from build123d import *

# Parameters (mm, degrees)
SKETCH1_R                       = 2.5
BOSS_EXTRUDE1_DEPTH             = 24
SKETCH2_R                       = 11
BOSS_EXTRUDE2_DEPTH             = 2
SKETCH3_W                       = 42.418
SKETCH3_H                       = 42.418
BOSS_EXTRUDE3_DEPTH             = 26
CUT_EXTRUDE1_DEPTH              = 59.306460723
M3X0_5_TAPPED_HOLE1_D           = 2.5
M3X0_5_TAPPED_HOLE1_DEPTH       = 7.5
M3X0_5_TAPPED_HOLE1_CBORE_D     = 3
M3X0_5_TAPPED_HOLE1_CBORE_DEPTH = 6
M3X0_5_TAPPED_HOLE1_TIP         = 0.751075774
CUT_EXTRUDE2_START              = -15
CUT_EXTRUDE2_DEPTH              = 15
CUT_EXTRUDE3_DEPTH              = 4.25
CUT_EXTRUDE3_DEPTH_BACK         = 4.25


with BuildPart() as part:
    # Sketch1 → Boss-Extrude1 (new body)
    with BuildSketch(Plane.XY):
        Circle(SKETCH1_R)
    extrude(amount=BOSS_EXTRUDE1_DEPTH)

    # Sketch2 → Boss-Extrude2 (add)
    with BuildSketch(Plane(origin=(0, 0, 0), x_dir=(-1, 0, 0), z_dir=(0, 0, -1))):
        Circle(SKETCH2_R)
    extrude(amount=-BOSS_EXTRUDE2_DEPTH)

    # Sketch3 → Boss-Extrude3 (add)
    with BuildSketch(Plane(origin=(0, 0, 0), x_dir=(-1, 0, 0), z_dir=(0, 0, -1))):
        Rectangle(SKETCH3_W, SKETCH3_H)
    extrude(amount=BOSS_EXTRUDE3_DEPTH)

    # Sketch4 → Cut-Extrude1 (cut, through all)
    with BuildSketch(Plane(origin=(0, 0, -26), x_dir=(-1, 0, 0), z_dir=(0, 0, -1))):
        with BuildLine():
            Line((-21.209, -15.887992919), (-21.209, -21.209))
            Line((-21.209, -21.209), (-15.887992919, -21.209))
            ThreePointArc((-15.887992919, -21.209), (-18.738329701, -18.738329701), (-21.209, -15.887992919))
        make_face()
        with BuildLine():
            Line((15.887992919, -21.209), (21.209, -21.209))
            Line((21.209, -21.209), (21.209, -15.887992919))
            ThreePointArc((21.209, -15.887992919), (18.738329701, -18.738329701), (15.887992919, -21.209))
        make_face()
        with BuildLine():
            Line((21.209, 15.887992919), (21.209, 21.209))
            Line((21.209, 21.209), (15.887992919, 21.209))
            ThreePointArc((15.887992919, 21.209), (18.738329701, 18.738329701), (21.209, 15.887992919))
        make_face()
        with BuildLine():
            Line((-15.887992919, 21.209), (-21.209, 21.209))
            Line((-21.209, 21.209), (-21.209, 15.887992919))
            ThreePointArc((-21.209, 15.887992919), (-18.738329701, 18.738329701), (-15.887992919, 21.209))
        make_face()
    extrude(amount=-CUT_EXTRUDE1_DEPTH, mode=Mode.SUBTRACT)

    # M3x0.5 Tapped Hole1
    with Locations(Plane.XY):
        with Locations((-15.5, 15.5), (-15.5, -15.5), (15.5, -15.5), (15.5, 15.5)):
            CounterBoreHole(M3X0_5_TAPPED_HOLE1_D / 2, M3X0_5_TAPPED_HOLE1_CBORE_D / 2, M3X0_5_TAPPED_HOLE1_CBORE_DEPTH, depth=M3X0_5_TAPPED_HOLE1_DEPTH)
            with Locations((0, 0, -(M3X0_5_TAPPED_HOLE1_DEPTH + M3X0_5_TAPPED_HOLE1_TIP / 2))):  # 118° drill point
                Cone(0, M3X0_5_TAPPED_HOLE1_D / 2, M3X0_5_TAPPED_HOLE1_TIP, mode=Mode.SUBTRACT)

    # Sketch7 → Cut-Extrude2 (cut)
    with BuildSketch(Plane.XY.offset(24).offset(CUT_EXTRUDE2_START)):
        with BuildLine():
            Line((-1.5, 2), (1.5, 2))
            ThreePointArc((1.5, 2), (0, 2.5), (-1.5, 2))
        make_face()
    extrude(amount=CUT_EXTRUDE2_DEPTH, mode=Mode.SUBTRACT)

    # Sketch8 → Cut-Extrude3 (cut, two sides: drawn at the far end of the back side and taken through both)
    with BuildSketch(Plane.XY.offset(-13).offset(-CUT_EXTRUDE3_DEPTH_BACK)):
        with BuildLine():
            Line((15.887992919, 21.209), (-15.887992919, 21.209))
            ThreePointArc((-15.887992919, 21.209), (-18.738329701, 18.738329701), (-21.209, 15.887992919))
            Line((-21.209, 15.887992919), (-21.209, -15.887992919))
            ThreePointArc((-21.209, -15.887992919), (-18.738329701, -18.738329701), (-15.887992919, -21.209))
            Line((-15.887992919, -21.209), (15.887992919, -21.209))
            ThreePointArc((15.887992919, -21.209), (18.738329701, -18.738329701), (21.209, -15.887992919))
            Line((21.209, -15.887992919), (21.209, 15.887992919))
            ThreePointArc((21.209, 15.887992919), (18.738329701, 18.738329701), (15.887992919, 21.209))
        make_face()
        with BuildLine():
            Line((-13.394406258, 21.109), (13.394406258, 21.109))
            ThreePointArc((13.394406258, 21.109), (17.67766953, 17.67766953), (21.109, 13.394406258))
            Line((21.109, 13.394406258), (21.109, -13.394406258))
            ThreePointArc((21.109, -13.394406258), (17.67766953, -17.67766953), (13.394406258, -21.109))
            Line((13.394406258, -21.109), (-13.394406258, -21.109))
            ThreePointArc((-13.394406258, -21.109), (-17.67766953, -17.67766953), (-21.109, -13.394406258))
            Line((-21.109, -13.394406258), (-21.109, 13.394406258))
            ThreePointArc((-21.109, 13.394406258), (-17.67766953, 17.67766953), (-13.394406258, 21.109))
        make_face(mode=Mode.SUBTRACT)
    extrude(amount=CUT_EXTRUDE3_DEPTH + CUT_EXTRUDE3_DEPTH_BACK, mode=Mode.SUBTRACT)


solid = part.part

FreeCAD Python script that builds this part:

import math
import FreeCAD as App
import Part
import Sketcher
from FreeCAD import Vector


def add_polygon(sketch, points):
    """Adds a closed chain of lines whose ends are joined by coincident constraints."""
    first, n = sketch.GeometryCount, len(points)
    for a, b in zip(points, points[1:] + points[:1]):
        sketch.addGeometry(Part.LineSegment(App.Vector(*a, 0), App.Vector(*b, 0)), False)
    for i in range(n):
        sketch.addConstraint(Sketcher.Constraint("Coincident", first + i, 2, first + (i + 1) % n, 1))

doc = App.newDocument("Part")
body = doc.addObject("PartDesign::Body", "Body")

sketch1 = body.newObject("Sketcher::SketchObject", "Sketch")
sketch1.AttachmentSupport = (doc.getObject("XY_Plane"), [""])
sketch1.MapMode = "FlatFace"
sketch1.addGeometry(Part.Circle(Vector(0, 0, 0), Vector(0, 0, 1), 2.5), False)
sketch1.addConstraint(Sketcher.Constraint("Coincident", 0, 3, -1, 1))
sketch1.addConstraint(Sketcher.Constraint("Diameter", 0, 5.0))
pad1 = body.newObject("PartDesign::Pad", "Pad")
pad1.Profile = sketch1
pad1.Length = 24

sketch2 = body.newObject("Sketcher::SketchObject", "Sketch001")
sketch2.AttachmentSupport = (doc.getObject("XY_Plane"), [""])
sketch2.MapMode = "FlatFace"
sketch2.addGeometry(Part.Circle(Vector(0, 0, 0), Vector(0, 0, 1), 11), False)
sketch2.addConstraint(Sketcher.Constraint("Coincident", 0, 3, -1, 1))
sketch2.addConstraint(Sketcher.Constraint("Diameter", 0, 22.0))
pad2 = body.newObject("PartDesign::Pad", "Pad001")
pad2.Profile = sketch2
pad2.Length = 2

sketch3 = body.newObject("Sketcher::SketchObject", "Sketch002")
sketch3.AttachmentSupport = (doc.getObject("XY_Plane"), [""])
sketch3.MapMode = "FlatFace"
add_polygon(sketch3, [(21, 21), (21, -21), (-21, -21), (-21, 21)])
sketch3.addConstraint(Sketcher.Constraint("Vertical", 0))
sketch3.addConstraint(Sketcher.Constraint("Horizontal", 1))
sketch3.addConstraint(Sketcher.Constraint("Vertical", 2))
sketch3.addConstraint(Sketcher.Constraint("Horizontal", 3))
sketch3.addConstraint(Sketcher.Constraint("Symmetric", 0, 2, 2, 2, -1, 1))
sketch3.addConstraint(Sketcher.Constraint("Equal", 3, 0))
sketch3.addConstraint(Sketcher.Constraint("DistanceX", 1, 2, 1, 1, 42.418))
pad3 = body.newObject("PartDesign::Pad", "Pad002")
pad3.Profile = sketch3
pad3.Length = 26
pad3.Reversed = True

sketch4 = body.newObject("Sketcher::SketchObject", "Sketch003")
sketch4.AttachmentSupport = (doc.getObject("XY_Plane"), [""])
sketch4.MapMode = "FlatFace"
sketch4.AttachmentOffset = App.Placement(Vector(0, 0, -26), App.Rotation())
sketch4.addGeometry(Part.LineSegment(Vector(21, -16, 0), Vector(21, -21, 0)), False)
sketch4.addGeometry(Part.LineSegment(Vector(21, -21, 0), Vector(16, -21, 0)), False)
sketch4.addGeometry(Part.ArcOfCircle(Part.Circle(Vector(0, 0, 0), Vector(0, 0, 1), 27), math.radians(-53.16), math.radians(-36.84)), False)
sketch4.addGeometry(Part.LineSegment(Vector(-16, -21, 0), Vector(-21, -21, 0)), False)
sketch4.addGeometry(Part.LineSegment(Vector(-21, -21, 0), Vector(-21, -16, 0)), False)
sketch4.addGeometry(Part.ArcOfCircle(Part.Circle(Vector(0, 0, 0), Vector(0, 0, 1), 27), math.radians(-143.16), math.radians(-126.84)), False)
sketch4.addGeometry(Part.LineSegment(Vector(-21, 16, 0), Vector(-21, 21, 0)), False)
sketch4.addGeometry(Part.LineSegment(Vector(-21, 21, 0), Vector(-16, 21, 0)), False)
sketch4.addGeometry(Part.ArcOfCircle(Part.Circle(Vector(0, 0, 0), Vector(0, 0, 1), 27), math.radians(126.84), math.radians(143.16)), False)
sketch4.addGeometry(Part.LineSegment(Vector(16, 21, 0), Vector(21, 21, 0)), False)
sketch4.addGeometry(Part.LineSegment(Vector(21, 21, 0), Vector(21, 16, 0)), False)
sketch4.addGeometry(Part.ArcOfCircle(Part.Circle(Vector(0, 0, 0), Vector(0, 0, 1), 27), math.radians(36.84), math.radians(53.16)), False)
sketch4.addConstraint(Sketcher.Constraint("Coincident", 0, 2, 1, 1))
sketch4.addConstraint(Sketcher.Constraint("Coincident", 1, 2, 2, 1))
sketch4.addConstraint(Sketcher.Constraint("Coincident", 2, 2, 0, 1))
sketch4.addConstraint(Sketcher.Constraint("Coincident", 3, 2, 4, 1))
sketch4.addConstraint(Sketcher.Constraint("Coincident", 4, 2, 5, 1))
sketch4.addConstraint(Sketcher.Constraint("Coincident", 5, 2, 3, 1))
sketch4.addConstraint(Sketcher.Constraint("Coincident", 6, 2, 7, 1))
sketch4.addConstraint(Sketcher.Constraint("Coincident", 7, 2, 8, 1))
sketch4.addConstraint(Sketcher.Constraint("Coincident", 8, 2, 6, 1))
sketch4.addConstraint(Sketcher.Constraint("Coincident", 9, 2, 10, 1))
sketch4.addConstraint(Sketcher.Constraint("Coincident", 10, 2, 11, 1))
sketch4.addConstraint(Sketcher.Constraint("Coincident", 11, 2, 9, 1))
sketch4.addConstraint(Sketcher.Constraint("Vertical", 0))
sketch4.addConstraint(Sketcher.Constraint("Horizontal", 1))
sketch4.addConstraint(Sketcher.Constraint("Horizontal", 3))
sketch4.addConstraint(Sketcher.Constraint("Vertical", 4))
sketch4.addConstraint(Sketcher.Constraint("Vertical", 6))
sketch4.addConstraint(Sketcher.Constraint("Horizontal", 7))
sketch4.addConstraint(Sketcher.Constraint("Horizontal", 9))
sketch4.addConstraint(Sketcher.Constraint("Vertical", 10))
sketch4.addConstraint(Sketcher.Constraint("Coincident", 2, 3, -1, 1))
sketch4.addConstraint(Sketcher.Constraint("Coincident", 5, 3, -1, 1))
sketch4.addConstraint(Sketcher.Constraint("Coincident", 8, 3, -1, 1))
sketch4.addConstraint(Sketcher.Constraint("Coincident", 11, 3, -1, 1))
sketch4.addConstraint(Sketcher.Constraint("Equal", 2, 5))
sketch4.addConstraint(Sketcher.Constraint("Equal", 5, 8))
sketch4.addConstraint(Sketcher.Constraint("Equal", 8, 11))
sketch4.addConstraint(Sketcher.Constraint("Symmetric", 0, 2, 6, 2, -1, 1))
sketch4.addConstraint(Sketcher.Constraint("Symmetric", 3, 2, 9, 2, -1, 1))
sketch4.addConstraint(Sketcher.Constraint("Symmetric", 0, 2, 3, 2, -2))
sketch4.addConstraint(Sketcher.Constraint("Equal", 9, 0))
sketch4.addConstraint(Sketcher.Constraint("Radius", 2, 26.5))
sketch4.addConstraint(Sketcher.Constraint("DistanceX", -1, 1, 0, 2, 21.209))
pocket1 = body.newObject("PartDesign::Pocket", "Pocket")
pocket1.Profile = sketch4
pocket1.Type = "ThroughAll"
pocket1.Reversed = True

sketch5 = body.newObject("Sketcher::SketchObject", "Sketch004")
sketch5.AttachmentSupport = (doc.getObject("XY_Plane"), [""])
sketch5.MapMode = "FlatFace"
sketch5.addGeometry(Part.Circle(Vector(-15.5, 15.5, 0), Vector(0, 0, 1), 1.2), False)
sketch5.addGeometry(Part.Circle(Vector(-15.5, -15.5, 0), Vector(0, 0, 1), 1.2), False)
sketch5.addGeometry(Part.Circle(Vector(15.5, -15.5, 0), Vector(0, 0, 1), 1.2), False)
sketch5.addGeometry(Part.Circle(Vector(15.5, 15.5, 0), Vector(0, 0, 1), 1.2), False)
sketch5.addConstraint(Sketcher.Constraint("Equal", 0, 1))
sketch5.addConstraint(Sketcher.Constraint("Equal", 1, 2))
sketch5.addConstraint(Sketcher.Constraint("Equal", 2, 3))
sketch5.addConstraint(Sketcher.Constraint("Symmetric", 0, 3, 2, 3, -1, 1))
sketch5.addConstraint(Sketcher.Constraint("Symmetric", 1, 3, 3, 3, -1, 1))
sketch5.addConstraint(Sketcher.Constraint("Symmetric", 1, 3, 2, 3, -2))
sketch5.addConstraint(Sketcher.Constraint("Diameter", 0, 2.5))
sketch5.addConstraint(Sketcher.Constraint("DistanceY", 1, 3, 0, 3, 31.0))
sketch5.addConstraint(Sketcher.Constraint("DistanceX", 1, 3, 2, 3, 31.0))
doc.recompute()
hole = body.newObject("PartDesign::Hole", "Hole")
hole.Profile = sketch5
hole.ThreadType = "None"
hole.Diameter = 2.5
hole.DepthType = "Dimension"
hole.Depth = 7.5
hole.DrillPoint = "Angled"
hole.DrillPointAngle = 118
hole.HoleCutType = "Counterbore"
hole.HoleCutDiameter = 3
hole.HoleCutDepth = 6

sketch6 = body.newObject("Sketcher::SketchObject", "Sketch005")
sketch6.AttachmentSupport = (doc.getObject("XY_Plane"), [""])
sketch6.MapMode = "FlatFace"
sketch6.AttachmentOffset = App.Placement(Vector(0, 0, 9), App.Rotation())
sketch6.addGeometry(Part.LineSegment(Vector(-1.5, 2, 0), Vector(1.5, 2, 0)), False)
sketch6.addGeometry(Part.ArcOfCircle(Part.Circle(Vector(0, 0, 0), Vector(0, 0, 1), 2.5), math.radians(53), math.radians(127)), False)
sketch6.addConstraint(Sketcher.Constraint("Coincident", 0, 1, 1, 2))
sketch6.addConstraint(Sketcher.Constraint("Coincident", 1, 1, 0, 2))
sketch6.addConstraint(Sketcher.Constraint("Horizontal", 0))
sketch6.addConstraint(Sketcher.Constraint("Coincident", 1, 3, -1, 1))
sketch6.addConstraint(Sketcher.Constraint("Radius", 1, 2.5))
sketch6.addConstraint(Sketcher.Constraint("DistanceX", 0, 1, 0, 2, 3.0))
pocket2 = body.newObject("PartDesign::Pocket", "Pocket001")
pocket2.Profile = sketch6
pocket2.Length = 15
pocket2.Reversed = True

sketch7 = body.newObject("Sketcher::SketchObject", "Sketch006")
sketch7.AttachmentSupport = (doc.getObject("XY_Plane"), [""])
sketch7.MapMode = "FlatFace"
sketch7.AttachmentOffset = App.Placement(Vector(0, 0, -13), App.Rotation())
sketch7.addGeometry(Part.LineSegment(Vector(16, 21, 0), Vector(-16, 21, 0)), False)
sketch7.addGeometry(Part.ArcOfCircle(Part.Circle(Vector(0, 0, 0), Vector(0, 0, 1), 27), math.radians(126.84), math.radians(143.16)), False)
sketch7.addGeometry(Part.LineSegment(Vector(-21, 16, 0), Vector(-21, -16, 0)), False)
sketch7.addGeometry(Part.ArcOfCircle(Part.Circle(Vector(0, 0, 0), Vector(0, 0, 1), 27), math.radians(-143.16), math.radians(-126.84)), False)
sketch7.addGeometry(Part.LineSegment(Vector(-16, -21, 0), Vector(16, -21, 0)), False)
sketch7.addGeometry(Part.ArcOfCircle(Part.Circle(Vector(0, 0, 0), Vector(0, 0, 1), 27), math.radians(-53.16), math.radians(-36.84)), False)
sketch7.addGeometry(Part.LineSegment(Vector(21, -16, 0), Vector(21, 16, 0)), False)
sketch7.addGeometry(Part.ArcOfCircle(Part.Circle(Vector(0, 0, 0), Vector(0, 0, 1), 27), math.radians(36.84), math.radians(53.16)), False)
sketch7.addGeometry(Part.ArcOfCircle(Part.Circle(Vector(0, 0, 0), Vector(0, 0, 1), 25), math.radians(122), math.radians(148)), False)
sketch7.addGeometry(Part.LineSegment(Vector(-13, 21, 0), Vector(13, 21, 0)), False)
sketch7.addGeometry(Part.ArcOfCircle(Part.Circle(Vector(0, 0, 0), Vector(0, 0, 1), 25), math.radians(32), math.radians(58)), False)
sketch7.addGeometry(Part.LineSegment(Vector(21, 13, 0), Vector(21, -13, 0)), False)
sketch7.addGeometry(Part.ArcOfCircle(Part.Circle(Vector(0, 0, 0), Vector(0, 0, 1), 25), math.radians(-58), math.radians(-32)), False)
sketch7.addGeometry(Part.LineSegment(Vector(13, -21, 0), Vector(-13, -21, 0)), False)
sketch7.addGeometry(Part.ArcOfCircle(Part.Circle(Vector(0, 0, 0), Vector(0, 0, 1), 25), math.radians(-148), math.radians(-122)), False)
sketch7.addGeometry(Part.LineSegment(Vector(-21, -13, 0), Vector(-21, 13, 0)), False)
sketch7.addConstraint(Sketcher.Constraint("Coincident", 0, 2, 1, 1))
sketch7.addConstraint(Sketcher.Constraint("Coincident", 1, 2, 2, 1))
sketch7.addConstraint(Sketcher.Constraint("Coincident", 2, 2, 3, 1))
sketch7.addConstraint(Sketcher.Constraint("Coincident", 3, 2, 4, 1))
sketch7.addConstraint(Sketcher.Constraint("Coincident", 4, 2, 5, 1))
sketch7.addConstraint(Sketcher.Constraint("Coincident", 5, 2, 6, 1))
sketch7.addConstraint(Sketcher.Constraint("Coincident", 6, 2, 7, 1))
sketch7.addConstraint(Sketcher.Constraint("Coincident", 7, 2, 0, 1))
sketch7.addConstraint(Sketcher.Constraint("Coincident", 8, 1, 9, 1))
sketch7.addConstraint(Sketcher.Constraint("Coincident", 9, 2, 10, 2))
sketch7.addConstraint(Sketcher.Constraint("Coincident", 10, 1, 11, 1))
sketch7.addConstraint(Sketcher.Constraint("Coincident", 11, 2, 12, 2))
sketch7.addConstraint(Sketcher.Constraint("Coincident", 12, 1, 13, 1))
sketch7.addConstraint(Sketcher.Constraint("Coincident", 13, 2, 14, 2))
sketch7.addConstraint(Sketcher.Constraint("Coincident", 14, 1, 15, 1))
sketch7.addConstraint(Sketcher.Constraint("Coincident", 15, 2, 8, 2))
sketch7.addConstraint(Sketcher.Constraint("Horizontal", 0))
sketch7.addConstraint(Sketcher.Constraint("Vertical", 2))
sketch7.addConstraint(Sketcher.Constraint("Horizontal", 4))
sketch7.addConstraint(Sketcher.Constraint("Vertical", 6))
sketch7.addConstraint(Sketcher.Constraint("Horizontal", 9))
sketch7.addConstraint(Sketcher.Constraint("Vertical", 11))
sketch7.addConstraint(Sketcher.Constraint("Horizontal", 13))
sketch7.addConstraint(Sketcher.Constraint("Vertical", 15))
sketch7.addConstraint(Sketcher.Constraint("Coincident", 1, 3, -1, 1))
sketch7.addConstraint(Sketcher.Constraint("Coincident", 3, 3, -1, 1))
sketch7.addConstraint(Sketcher.Constraint("Coincident", 5, 3, -1, 1))
sketch7.addConstraint(Sketcher.Constraint("Coincident", 7, 3, -1, 1))
sketch7.addConstraint(Sketcher.Constraint("Coincident", 8, 3, -1, 1))
sketch7.addConstraint(Sketcher.Constraint("Coincident", 10, 3, -1, 1))
sketch7.addConstraint(Sketcher.Constraint("Coincident", 12, 3, -1, 1))
sketch7.addConstraint(Sketcher.Constraint("Coincident", 14, 3, -1, 1))
sketch7.addConstraint(Sketcher.Constraint("Equal", 1, 3))
sketch7.addConstraint(Sketcher.Constraint("Equal", 3, 5))
sketch7.addConstraint(Sketcher.Constraint("Equal", 5, 7))
sketch7.addConstraint(Sketcher.Constraint("Equal", 8, 10))
sketch7.addConstraint(Sketcher.Constraint("Equal", 10, 12))
sketch7.addConstraint(Sketcher.Constraint("Equal", 12, 14))
sketch7.addConstraint(Sketcher.Constraint("Horizontal", 2, 2, 5, 2))
sketch7.addConstraint(Sketcher.Constraint("Horizontal", 11, 2, 14, 1))
sketch7.addConstraint(Sketcher.Constraint("Vertical", 0, 2, 3, 2))
sketch7.addConstraint(Sketcher.Constraint("Vertical", 9, 2, 12, 1))
sketch7.addConstraint(Sketcher.Constraint("Equal", 4, 2))
sketch7.addConstraint(Sketcher.Constraint("Equal", 13, 11))
sketch7.addConstraint(Sketcher.Constraint("Radius", 8, 25.0))
sketch7.addConstraint(Sketcher.Constraint("Radius", 1, 26.5))
sketch7.addConstraint(Sketcher.Constraint("DistanceY", 8, 1, 0, 2, 0.1))
sketch7.addConstraint(Sketcher.Constraint("DistanceY", -1, 1, 0, 2, 21.209))
pocket3 = body.newObject("PartDesign::Pocket", "Pocket002")
pocket3.Profile = sketch7
pocket3.Type = "TwoLengths"
pocket3.Length = 4.25
pocket3.Length2 = 4.25
pocket3.Reversed = True

doc.recompute()
